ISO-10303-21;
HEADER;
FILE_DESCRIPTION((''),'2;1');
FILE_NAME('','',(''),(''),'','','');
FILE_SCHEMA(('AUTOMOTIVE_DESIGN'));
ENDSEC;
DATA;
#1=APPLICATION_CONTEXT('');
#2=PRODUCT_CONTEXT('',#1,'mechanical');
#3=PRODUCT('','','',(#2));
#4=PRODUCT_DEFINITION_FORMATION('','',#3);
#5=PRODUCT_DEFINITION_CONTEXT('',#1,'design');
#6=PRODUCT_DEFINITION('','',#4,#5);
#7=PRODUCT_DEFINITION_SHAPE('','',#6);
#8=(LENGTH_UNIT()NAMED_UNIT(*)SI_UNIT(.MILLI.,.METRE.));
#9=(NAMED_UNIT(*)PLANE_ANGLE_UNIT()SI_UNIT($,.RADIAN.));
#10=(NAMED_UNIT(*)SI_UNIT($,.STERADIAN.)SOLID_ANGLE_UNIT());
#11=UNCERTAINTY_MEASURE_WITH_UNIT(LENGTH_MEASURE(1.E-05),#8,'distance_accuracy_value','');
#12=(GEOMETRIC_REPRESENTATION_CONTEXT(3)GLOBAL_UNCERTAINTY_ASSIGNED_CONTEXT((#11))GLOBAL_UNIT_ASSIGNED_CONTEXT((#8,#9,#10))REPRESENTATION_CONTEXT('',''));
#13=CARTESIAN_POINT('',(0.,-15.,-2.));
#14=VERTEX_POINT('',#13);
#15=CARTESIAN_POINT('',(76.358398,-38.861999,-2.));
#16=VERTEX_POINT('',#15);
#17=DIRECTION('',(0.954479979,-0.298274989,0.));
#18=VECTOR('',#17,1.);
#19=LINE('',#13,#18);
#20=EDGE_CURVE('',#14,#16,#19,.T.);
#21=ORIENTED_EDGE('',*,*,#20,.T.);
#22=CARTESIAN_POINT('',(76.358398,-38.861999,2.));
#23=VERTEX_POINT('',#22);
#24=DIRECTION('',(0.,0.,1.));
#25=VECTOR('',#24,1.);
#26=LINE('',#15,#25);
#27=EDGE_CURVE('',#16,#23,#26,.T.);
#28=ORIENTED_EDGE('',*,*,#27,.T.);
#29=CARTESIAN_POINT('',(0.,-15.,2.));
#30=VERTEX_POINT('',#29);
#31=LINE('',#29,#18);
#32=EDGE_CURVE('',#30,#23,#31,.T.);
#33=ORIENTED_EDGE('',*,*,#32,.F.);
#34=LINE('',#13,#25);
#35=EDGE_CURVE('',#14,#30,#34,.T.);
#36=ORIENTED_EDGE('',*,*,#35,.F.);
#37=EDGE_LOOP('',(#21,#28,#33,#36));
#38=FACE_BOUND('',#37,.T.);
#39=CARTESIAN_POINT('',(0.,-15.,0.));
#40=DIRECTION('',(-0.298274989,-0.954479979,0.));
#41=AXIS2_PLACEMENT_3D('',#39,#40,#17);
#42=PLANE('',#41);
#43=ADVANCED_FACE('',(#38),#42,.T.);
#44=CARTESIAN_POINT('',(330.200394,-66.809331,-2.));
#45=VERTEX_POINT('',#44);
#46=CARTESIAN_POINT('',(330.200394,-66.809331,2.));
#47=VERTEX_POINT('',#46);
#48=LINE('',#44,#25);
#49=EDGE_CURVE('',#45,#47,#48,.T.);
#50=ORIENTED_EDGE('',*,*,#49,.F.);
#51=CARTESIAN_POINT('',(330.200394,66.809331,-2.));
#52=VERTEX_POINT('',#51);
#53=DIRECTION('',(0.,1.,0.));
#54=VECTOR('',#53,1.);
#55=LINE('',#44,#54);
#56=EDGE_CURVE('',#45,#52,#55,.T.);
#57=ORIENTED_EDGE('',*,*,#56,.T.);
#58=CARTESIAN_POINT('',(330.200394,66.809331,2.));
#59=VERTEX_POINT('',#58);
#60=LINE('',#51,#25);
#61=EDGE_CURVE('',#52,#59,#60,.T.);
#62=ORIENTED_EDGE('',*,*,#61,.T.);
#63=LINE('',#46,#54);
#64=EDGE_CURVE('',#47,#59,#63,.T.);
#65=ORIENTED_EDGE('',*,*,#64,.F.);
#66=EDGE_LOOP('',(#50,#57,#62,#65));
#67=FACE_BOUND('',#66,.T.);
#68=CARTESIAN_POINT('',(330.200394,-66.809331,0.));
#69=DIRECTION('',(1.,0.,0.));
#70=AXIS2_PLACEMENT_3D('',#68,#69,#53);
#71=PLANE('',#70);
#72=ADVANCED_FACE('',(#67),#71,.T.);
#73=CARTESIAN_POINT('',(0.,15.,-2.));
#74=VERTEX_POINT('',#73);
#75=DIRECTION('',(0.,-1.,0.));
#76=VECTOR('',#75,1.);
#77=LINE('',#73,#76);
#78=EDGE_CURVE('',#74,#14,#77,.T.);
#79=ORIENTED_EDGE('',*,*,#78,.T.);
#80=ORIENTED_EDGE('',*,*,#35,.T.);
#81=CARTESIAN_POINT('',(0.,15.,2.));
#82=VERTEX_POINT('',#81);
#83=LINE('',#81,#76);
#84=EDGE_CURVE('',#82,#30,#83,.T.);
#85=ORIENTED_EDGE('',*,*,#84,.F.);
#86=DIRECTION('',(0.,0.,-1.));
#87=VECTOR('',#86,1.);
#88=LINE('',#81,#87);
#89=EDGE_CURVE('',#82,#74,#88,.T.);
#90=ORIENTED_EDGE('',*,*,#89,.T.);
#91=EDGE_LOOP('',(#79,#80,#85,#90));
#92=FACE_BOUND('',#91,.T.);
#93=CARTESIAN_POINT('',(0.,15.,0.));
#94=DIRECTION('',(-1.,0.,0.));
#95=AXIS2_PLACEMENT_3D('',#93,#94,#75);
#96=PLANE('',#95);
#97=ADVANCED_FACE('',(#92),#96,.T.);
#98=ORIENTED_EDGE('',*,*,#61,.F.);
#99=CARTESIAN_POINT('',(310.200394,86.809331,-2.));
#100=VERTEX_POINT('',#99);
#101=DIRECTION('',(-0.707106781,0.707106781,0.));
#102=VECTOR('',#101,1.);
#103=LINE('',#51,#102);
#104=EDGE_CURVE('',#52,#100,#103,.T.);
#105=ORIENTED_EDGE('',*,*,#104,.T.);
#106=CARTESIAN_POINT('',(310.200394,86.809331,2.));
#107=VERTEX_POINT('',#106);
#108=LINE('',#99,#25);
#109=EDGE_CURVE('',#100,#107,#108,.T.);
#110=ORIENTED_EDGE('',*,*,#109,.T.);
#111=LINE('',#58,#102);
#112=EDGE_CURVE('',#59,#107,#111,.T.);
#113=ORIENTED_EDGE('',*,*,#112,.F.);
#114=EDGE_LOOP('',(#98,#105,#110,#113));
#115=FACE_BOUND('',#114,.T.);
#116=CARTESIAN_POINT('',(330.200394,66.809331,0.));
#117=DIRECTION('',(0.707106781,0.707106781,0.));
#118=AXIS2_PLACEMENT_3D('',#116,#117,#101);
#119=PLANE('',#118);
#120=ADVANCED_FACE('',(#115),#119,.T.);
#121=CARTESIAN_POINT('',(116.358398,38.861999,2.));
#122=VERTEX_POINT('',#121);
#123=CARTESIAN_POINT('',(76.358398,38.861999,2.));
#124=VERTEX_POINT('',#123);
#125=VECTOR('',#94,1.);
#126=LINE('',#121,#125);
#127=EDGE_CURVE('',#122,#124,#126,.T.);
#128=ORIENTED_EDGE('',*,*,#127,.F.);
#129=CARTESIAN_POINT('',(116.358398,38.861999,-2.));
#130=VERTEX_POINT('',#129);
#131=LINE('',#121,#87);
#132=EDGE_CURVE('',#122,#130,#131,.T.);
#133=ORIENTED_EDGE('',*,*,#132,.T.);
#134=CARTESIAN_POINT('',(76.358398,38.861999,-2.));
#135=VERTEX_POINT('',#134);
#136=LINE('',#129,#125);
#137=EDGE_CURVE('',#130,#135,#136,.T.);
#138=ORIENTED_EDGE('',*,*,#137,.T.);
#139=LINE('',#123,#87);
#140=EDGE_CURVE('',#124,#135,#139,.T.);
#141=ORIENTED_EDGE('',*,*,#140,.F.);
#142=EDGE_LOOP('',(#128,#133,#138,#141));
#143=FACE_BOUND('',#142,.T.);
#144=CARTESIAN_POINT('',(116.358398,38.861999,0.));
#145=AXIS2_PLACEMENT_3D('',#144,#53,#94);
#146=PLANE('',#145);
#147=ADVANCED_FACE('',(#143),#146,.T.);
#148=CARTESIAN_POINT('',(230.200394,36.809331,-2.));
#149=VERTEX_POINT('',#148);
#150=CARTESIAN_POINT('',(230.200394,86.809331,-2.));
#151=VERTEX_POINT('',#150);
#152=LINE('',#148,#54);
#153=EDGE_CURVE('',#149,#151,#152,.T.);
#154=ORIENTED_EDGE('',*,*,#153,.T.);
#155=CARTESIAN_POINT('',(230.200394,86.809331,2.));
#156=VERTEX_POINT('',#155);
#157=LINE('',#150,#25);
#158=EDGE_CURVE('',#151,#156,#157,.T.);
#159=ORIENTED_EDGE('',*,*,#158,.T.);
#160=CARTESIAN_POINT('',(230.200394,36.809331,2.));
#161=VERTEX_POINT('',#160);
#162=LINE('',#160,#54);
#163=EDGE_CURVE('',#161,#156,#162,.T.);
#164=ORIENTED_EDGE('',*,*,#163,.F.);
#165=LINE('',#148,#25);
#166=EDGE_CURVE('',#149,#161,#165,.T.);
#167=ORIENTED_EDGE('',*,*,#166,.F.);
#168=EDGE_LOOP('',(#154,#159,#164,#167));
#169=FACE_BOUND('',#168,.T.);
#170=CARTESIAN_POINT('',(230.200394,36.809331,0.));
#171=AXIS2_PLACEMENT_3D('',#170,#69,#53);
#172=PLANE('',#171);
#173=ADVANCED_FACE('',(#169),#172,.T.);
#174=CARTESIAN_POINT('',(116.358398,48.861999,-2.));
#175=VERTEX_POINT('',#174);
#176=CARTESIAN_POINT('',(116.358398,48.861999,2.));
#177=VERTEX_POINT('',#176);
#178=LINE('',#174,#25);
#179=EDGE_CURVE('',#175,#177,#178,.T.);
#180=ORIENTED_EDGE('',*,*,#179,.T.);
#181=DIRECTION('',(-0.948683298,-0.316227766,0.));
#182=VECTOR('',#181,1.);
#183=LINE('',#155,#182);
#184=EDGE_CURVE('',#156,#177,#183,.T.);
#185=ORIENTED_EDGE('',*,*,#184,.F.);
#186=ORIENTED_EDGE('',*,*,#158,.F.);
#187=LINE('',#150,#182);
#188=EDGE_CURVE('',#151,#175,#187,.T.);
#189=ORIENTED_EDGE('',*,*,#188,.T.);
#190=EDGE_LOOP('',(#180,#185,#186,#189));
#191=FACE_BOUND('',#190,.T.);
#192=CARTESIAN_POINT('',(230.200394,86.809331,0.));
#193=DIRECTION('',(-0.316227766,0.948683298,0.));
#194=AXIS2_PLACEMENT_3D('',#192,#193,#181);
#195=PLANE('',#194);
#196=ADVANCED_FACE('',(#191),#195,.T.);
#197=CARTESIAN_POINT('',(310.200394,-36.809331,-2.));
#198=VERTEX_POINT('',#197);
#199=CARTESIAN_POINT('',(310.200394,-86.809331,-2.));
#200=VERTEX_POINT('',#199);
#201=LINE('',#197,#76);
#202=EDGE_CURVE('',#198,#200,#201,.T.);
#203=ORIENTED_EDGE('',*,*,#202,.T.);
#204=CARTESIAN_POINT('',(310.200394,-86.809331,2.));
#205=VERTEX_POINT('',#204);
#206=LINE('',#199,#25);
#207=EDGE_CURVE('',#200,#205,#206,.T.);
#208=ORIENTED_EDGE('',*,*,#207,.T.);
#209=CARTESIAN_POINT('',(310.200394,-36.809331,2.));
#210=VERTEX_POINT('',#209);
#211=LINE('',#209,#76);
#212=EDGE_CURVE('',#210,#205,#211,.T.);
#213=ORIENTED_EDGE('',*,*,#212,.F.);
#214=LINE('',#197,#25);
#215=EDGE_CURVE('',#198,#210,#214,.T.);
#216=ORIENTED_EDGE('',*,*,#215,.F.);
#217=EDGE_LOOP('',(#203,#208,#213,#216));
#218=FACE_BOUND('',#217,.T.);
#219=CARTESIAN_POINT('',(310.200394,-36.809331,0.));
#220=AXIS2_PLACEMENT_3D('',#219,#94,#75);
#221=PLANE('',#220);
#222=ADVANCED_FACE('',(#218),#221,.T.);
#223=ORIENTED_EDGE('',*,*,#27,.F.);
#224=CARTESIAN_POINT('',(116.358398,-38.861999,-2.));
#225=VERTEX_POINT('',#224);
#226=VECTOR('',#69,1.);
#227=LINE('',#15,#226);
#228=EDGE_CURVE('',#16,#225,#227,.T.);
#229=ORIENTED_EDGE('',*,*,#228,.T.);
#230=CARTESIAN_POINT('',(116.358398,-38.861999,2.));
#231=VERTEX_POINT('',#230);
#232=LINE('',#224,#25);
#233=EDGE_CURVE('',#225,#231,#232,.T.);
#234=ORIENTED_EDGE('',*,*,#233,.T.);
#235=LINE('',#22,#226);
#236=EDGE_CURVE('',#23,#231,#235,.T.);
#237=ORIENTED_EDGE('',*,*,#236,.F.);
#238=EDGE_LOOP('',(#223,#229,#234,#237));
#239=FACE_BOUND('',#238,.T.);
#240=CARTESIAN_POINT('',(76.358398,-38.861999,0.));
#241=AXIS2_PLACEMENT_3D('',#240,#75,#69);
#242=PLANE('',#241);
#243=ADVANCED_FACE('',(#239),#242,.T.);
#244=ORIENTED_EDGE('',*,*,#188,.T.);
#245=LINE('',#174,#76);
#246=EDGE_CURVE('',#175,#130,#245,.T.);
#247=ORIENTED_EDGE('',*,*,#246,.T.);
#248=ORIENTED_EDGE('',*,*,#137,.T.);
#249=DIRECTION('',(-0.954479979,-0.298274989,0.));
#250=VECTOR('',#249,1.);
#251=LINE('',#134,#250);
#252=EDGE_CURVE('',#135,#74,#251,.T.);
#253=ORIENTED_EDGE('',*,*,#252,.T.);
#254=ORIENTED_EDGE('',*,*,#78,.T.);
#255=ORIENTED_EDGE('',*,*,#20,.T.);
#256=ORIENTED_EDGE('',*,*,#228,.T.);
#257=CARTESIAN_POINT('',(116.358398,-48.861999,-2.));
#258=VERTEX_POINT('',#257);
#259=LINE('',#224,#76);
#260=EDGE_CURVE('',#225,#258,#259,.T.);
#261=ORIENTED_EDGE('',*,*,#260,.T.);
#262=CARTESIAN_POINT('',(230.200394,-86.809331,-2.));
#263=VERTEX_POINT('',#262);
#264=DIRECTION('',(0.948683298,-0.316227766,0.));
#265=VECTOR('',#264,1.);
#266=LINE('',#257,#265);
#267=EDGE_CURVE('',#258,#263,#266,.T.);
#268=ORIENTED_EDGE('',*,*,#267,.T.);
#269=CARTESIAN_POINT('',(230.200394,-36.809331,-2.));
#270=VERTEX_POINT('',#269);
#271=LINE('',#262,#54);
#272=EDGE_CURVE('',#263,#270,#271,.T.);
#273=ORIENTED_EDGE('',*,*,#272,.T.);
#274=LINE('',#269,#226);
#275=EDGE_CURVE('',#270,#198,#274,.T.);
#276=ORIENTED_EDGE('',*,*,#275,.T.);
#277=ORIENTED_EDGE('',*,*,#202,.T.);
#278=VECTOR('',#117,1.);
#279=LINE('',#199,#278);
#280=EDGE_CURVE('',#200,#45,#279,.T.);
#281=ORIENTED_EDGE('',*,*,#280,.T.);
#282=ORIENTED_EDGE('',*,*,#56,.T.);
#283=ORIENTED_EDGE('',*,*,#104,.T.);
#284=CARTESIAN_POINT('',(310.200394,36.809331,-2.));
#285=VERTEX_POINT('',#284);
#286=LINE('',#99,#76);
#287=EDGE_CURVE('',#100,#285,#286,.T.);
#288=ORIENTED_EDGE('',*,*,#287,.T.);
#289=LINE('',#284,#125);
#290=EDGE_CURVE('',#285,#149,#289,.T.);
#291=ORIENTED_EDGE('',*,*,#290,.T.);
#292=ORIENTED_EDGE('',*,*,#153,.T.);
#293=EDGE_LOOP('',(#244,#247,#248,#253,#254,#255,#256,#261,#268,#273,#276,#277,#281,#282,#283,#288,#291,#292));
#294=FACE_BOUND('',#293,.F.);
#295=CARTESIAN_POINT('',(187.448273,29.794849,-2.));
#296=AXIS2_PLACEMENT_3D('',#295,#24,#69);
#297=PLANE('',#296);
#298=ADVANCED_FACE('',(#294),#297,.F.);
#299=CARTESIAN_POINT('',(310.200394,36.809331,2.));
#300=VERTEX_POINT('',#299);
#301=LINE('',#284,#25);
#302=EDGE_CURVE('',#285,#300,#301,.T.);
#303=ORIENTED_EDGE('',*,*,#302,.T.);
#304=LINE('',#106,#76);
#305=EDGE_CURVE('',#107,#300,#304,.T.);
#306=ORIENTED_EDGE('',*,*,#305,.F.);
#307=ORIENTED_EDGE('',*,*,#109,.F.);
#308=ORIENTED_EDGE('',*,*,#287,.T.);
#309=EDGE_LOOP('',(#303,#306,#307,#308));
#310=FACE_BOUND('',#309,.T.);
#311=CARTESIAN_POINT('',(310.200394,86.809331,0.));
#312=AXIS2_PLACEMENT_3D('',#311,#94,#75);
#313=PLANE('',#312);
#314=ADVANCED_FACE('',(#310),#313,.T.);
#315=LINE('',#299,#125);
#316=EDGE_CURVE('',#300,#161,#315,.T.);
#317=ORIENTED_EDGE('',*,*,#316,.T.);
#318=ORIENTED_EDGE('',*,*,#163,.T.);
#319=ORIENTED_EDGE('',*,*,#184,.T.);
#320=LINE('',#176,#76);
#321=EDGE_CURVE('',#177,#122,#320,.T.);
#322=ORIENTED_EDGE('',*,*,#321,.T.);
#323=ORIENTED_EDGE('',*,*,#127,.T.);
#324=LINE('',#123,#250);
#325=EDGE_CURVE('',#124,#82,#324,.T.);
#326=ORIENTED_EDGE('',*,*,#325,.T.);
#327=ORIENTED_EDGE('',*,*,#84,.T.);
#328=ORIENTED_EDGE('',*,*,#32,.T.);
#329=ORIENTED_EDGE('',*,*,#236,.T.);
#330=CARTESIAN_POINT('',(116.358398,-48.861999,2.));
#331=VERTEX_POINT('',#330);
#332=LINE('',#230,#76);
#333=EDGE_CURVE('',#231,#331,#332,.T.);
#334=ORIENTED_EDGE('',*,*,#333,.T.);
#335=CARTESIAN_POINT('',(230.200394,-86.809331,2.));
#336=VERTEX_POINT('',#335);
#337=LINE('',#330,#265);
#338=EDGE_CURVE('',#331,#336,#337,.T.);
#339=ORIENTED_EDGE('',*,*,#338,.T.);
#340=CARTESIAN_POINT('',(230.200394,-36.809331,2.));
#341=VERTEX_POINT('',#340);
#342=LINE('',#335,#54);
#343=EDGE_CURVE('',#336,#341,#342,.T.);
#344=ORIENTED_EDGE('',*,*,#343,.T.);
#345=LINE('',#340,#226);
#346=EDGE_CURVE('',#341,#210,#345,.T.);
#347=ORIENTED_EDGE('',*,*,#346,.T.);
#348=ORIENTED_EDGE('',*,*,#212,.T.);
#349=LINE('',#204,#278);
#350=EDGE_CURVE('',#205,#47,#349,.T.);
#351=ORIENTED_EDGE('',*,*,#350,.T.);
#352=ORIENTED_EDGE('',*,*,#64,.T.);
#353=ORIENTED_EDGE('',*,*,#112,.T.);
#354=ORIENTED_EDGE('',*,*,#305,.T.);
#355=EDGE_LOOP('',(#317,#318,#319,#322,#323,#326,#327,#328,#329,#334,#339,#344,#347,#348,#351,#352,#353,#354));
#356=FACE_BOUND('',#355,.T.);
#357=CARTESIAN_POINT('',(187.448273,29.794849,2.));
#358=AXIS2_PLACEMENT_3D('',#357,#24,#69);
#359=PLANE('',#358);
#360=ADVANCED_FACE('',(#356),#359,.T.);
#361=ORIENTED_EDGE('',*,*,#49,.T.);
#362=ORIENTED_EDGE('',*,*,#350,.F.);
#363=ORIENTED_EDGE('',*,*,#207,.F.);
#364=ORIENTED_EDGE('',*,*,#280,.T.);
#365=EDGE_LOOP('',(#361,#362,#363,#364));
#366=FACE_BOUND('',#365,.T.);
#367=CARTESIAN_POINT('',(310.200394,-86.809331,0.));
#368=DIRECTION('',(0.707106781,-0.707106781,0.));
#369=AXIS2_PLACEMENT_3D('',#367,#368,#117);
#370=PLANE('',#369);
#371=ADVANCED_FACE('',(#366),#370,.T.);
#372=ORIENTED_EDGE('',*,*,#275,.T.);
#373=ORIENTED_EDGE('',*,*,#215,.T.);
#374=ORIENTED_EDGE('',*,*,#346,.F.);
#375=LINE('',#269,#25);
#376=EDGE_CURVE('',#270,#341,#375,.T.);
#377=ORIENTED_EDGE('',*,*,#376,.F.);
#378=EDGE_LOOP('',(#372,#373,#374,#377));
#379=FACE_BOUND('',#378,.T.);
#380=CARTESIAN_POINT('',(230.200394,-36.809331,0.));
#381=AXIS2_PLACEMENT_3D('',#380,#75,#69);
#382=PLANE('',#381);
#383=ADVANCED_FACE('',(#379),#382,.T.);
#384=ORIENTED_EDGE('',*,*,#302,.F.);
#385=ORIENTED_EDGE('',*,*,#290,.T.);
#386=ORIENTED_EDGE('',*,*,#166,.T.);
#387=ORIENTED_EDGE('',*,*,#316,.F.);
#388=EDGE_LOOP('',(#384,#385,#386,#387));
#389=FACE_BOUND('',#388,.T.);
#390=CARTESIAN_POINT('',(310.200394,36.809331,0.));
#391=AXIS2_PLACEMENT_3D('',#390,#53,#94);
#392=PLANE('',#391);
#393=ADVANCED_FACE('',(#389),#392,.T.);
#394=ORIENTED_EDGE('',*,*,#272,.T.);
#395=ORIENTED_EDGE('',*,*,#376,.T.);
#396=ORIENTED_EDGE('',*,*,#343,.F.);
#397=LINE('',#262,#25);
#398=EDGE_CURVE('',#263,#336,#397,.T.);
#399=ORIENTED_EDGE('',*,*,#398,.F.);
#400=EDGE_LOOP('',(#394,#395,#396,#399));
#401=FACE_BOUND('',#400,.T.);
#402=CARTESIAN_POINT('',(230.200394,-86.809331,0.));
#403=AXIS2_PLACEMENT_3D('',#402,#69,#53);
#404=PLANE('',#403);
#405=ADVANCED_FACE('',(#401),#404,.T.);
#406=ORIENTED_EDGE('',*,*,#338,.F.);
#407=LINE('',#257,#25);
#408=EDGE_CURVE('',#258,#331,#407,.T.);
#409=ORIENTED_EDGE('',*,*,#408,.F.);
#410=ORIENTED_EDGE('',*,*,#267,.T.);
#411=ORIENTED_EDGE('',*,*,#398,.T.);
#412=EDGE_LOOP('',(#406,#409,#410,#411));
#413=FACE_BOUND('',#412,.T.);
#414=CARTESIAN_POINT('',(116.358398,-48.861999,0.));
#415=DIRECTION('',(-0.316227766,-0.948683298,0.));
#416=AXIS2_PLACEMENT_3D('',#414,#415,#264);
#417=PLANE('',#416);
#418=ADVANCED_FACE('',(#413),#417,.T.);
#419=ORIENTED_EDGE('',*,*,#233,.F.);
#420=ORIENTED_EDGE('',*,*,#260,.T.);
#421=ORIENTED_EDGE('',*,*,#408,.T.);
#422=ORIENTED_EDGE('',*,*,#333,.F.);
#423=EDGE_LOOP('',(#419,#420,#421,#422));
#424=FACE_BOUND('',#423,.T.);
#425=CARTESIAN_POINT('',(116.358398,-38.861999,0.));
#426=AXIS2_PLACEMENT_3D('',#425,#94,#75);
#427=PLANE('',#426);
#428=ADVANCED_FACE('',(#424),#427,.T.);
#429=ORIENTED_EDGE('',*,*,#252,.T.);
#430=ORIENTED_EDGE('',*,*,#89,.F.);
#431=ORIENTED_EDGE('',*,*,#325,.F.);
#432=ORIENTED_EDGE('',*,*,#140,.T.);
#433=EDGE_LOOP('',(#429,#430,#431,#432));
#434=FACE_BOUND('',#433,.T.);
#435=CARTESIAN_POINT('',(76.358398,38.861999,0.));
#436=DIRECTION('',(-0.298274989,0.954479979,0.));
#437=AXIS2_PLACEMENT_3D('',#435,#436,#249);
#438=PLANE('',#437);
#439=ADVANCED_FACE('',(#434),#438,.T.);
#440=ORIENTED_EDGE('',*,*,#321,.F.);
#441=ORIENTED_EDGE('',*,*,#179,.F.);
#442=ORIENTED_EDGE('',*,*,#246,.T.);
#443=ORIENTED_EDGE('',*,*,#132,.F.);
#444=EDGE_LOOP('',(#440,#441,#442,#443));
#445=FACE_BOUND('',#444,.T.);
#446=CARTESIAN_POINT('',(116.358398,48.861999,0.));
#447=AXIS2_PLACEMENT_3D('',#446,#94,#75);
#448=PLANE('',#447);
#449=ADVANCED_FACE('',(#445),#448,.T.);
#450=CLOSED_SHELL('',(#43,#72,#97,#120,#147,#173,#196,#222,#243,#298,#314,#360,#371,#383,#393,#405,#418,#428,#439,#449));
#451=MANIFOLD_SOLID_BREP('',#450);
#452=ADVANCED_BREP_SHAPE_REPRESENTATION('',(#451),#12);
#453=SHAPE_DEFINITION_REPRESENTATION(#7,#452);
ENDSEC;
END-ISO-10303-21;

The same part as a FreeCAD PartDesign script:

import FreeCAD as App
import Part
import Sketcher
from FreeCAD import Vector


def add_polygon(sketch, points):
    """Adds a closed chain of lines whose ends are joined by coincident constraints."""
    first, n = sketch.GeometryCount, len(points)
    for a, b in zip(points, points[1:] + points[:1]):
        sketch.addGeometry(Part.LineSegment(App.Vector(*a, 0), App.Vector(*b, 0)), False)
    for i in range(n):
        sketch.addConstraint(Sketcher.Constraint("Coincident", first + i, 2, first + (i + 1) % n, 1))

doc = App.newDocument("Part")
body = doc.addObject("PartDesign::Body", "Body")

sketch1 = body.newObject("Sketcher::SketchObject", "Sketch")
sketch1.AttachmentSupport = (doc.getObject("XY_Plane"), [""])
sketch1.MapMode = "FlatFace"
add_polygon(sketch1, [(0, 15), (0, -15), (76.358398, -38.861999), (116.358398, -38.861999), (116.358398, -48.861999), (230.200394, -86.809331), (230.200394, -36.809331), (310.200394, -36.809331), (310.200394, -86.809331), (330.200394, -66.809331), (330.200394, 66.809331), (310.200394, 86.809331), (310.200394, 36.809331), (230.200394, 36.809331), (230.200394, 86.809331), (116.358398, 48.861999), (116.358398, 38.861999), (76.358398, 38.861999)])
sketch1.addConstraint([
    Sketcher.Constraint("Vertical", 0),
    Sketcher.Constraint("Horizontal", 2),
    Sketcher.Constraint("Vertical", 3),
    Sketcher.Constraint("Vertical", 5),
    Sketcher.Constraint("Horizontal", 6),
    Sketcher.Constraint("Vertical", 7),
    Sketcher.Constraint("Vertical", 9),
    Sketcher.Constraint("Vertical", 11),
    Sketcher.Constraint("Horizontal", 12),
    Sketcher.Constraint("Vertical", 13),
    Sketcher.Constraint("Vertical", 15),
    Sketcher.Constraint("Horizontal", 16),
    Sketcher.Constraint("Symmetric", 0, 2, 17, 2, -1, 1),
    Sketcher.Constraint("Symmetric", 7, 2, 10, 2, -1),
    Sketcher.Constraint("Symmetric", 5, 2, 12, 2, -1),
    Sketcher.Constraint("Symmetric", 3, 2, 14, 2, -1),
    Sketcher.Constraint("Symmetric", 1, 2, 16, 2, -1),
    Sketcher.Constraint("Perpendicular", 8, 10),
    Sketcher.Constraint("Horizontal", 4, 2, 7, 2),
    Sketcher.Constraint("Horizontal", 10, 2, 13, 2),
    Sketcher.Constraint("Equal", 8, 10),
    Sketcher.Constraint("DistanceX", 2, 1, 2, 2, 40.0),
    Sketcher.Constraint("DistanceX", 6, 1, 6, 2, 80.0),
    Sketcher.Constraint("DistanceY", 0, 2, 0, 1, 30.0),
    Sketcher.Constraint("DistanceY", 3, 2, 3, 1, 10.0),
    Sketcher.Constraint("DistanceY", 5, 1, 5, 2, 50.0),
    Sketcher.Constraint("Distance", 1, 80.0),
    Sketcher.Constraint("Distance", 4, 120.0),
    Sketcher.Constraint("DistanceX", 7, 2, 8, 2, 20.0),
    Sketcher.Constraint("DistanceY", 1, 2, -1, 1, 38.861999),
    Sketcher.Constraint("DistanceY", 9, 1, 9, 2, 133.618662),
])
pad1 = body.newObject("PartDesign::Pad", "Pad")
pad1.Profile = sketch1
pad1.Length = 4
pad1.Midplane = True

doc.recompute()
